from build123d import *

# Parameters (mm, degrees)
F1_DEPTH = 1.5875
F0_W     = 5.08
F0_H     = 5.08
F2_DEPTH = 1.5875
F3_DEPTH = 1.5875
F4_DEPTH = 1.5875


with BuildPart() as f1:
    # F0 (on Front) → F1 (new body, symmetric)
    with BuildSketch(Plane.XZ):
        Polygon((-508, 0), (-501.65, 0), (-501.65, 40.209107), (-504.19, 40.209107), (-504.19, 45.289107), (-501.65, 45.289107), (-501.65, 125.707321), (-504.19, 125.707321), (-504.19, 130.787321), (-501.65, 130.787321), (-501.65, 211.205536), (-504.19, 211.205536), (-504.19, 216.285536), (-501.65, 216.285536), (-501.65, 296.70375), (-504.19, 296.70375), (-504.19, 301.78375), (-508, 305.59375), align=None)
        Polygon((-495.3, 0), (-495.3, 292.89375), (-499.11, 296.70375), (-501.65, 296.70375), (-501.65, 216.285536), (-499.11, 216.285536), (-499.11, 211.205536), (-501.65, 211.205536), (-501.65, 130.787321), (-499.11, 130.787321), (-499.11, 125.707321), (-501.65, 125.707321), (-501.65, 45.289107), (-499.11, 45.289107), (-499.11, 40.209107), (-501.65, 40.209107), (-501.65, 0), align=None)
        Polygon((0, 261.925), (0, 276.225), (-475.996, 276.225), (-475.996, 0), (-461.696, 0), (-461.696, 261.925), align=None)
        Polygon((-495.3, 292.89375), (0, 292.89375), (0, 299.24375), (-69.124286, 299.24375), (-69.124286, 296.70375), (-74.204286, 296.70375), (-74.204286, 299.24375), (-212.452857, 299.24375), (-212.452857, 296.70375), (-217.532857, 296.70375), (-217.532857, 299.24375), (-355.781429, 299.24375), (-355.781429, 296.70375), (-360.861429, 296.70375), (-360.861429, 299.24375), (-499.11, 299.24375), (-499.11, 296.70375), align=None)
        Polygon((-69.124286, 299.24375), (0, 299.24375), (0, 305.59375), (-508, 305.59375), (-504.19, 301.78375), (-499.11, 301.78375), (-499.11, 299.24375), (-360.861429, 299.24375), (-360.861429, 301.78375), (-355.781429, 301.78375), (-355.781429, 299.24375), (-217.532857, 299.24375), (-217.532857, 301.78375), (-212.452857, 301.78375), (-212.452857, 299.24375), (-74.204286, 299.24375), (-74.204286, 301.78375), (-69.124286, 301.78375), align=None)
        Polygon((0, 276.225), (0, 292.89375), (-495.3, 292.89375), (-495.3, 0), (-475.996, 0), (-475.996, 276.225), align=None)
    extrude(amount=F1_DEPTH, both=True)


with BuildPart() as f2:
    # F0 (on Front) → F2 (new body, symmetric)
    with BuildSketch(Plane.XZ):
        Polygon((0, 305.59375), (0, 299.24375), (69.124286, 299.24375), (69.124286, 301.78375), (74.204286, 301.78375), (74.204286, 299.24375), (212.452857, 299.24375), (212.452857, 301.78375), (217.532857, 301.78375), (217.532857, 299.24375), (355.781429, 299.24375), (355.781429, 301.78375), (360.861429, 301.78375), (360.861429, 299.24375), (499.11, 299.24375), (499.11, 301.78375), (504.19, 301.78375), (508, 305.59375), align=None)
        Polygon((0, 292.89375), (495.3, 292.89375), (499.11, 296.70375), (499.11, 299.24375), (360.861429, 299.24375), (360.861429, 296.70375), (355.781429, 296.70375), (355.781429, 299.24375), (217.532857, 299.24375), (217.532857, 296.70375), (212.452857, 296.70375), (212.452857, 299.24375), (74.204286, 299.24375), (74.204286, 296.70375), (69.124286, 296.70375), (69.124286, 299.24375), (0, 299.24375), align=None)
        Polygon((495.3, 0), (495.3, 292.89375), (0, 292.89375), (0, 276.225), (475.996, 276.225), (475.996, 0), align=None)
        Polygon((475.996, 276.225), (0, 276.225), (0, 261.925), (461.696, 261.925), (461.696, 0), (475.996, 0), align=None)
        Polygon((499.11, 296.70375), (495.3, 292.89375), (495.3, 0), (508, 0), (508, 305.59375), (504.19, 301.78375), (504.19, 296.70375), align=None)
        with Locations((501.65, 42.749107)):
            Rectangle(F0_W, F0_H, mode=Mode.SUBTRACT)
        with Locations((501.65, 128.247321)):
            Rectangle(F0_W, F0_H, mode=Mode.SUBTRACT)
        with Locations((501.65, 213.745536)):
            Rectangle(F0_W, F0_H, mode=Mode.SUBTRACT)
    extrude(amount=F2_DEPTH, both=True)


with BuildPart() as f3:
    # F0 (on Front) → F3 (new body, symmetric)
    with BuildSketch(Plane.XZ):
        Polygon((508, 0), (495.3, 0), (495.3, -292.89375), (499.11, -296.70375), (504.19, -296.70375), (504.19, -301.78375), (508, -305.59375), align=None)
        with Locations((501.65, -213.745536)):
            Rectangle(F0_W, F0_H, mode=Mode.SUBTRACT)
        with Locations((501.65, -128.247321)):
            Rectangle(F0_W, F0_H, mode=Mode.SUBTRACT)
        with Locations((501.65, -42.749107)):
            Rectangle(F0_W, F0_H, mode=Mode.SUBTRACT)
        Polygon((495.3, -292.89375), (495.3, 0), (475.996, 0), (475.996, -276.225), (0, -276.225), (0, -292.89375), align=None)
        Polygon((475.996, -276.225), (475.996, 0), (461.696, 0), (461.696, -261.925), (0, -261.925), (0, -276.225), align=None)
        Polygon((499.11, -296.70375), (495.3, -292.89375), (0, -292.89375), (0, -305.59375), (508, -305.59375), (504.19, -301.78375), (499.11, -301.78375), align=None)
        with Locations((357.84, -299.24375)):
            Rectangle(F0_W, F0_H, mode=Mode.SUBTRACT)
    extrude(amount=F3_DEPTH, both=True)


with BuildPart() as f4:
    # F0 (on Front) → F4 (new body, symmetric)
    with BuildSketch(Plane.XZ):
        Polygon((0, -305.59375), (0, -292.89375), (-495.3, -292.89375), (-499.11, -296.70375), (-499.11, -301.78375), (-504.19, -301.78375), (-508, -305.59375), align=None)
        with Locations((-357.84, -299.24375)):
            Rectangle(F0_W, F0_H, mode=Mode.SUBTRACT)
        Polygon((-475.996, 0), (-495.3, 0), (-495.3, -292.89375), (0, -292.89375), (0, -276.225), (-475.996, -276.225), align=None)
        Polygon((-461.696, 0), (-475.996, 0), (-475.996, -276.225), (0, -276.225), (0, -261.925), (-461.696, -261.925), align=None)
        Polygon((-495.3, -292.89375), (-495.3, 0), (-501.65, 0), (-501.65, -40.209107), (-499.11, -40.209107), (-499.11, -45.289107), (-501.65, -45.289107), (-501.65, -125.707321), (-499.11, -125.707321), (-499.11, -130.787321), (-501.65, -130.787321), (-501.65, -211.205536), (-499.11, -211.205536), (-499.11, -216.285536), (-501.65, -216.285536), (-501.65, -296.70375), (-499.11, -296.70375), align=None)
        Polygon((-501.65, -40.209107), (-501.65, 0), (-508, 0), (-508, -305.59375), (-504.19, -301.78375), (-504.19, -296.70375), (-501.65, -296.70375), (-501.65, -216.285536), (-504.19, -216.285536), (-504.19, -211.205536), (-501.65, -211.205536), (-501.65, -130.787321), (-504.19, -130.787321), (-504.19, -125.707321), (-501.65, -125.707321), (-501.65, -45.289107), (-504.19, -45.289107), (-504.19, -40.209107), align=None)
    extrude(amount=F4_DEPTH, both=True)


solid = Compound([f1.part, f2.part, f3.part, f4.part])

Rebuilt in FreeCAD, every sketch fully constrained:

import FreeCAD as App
import Part
import Sketcher
from FreeCAD import Vector
Q = App.Units.Quantity

doc = App.newDocument("Part")
body = doc.addObject("PartDesign::Body", "Body")

# Sketch on XZ plane
sketch1 = body.newObject("Sketcher::SketchObject", "Sketch")
sketch1.AttachmentSupport = (doc.getObject("XZ_Plane"), [""])
sketch1.MapMode = "FlatFace"
sketch1.addGeometry([
    Part.LineSegment(Vector(-508, 0, 0), Vector(-462, 0, 0)),  # 0
    Part.LineSegment(Vector(-462, 0, 0), Vector(-462, 262, 0)),  # 1
    Part.LineSegment(Vector(-462, 262, 0), Vector(0, 262, 0)),  # 2
    Part.LineSegment(Vector(0, 262, 0), Vector(0, 306, 0)),  # 3
    Part.LineSegment(Vector(0, 306, 0), Vector(-508, 306, 0)),  # 4
    Part.LineSegment(Vector(-508, 306, 0), Vector(-508, 0, 0)),  # 5
    Part.LineSegment(Vector(-69, 297, 0), Vector(-74, 297, 0)),  # 6
    Part.LineSegment(Vector(-74, 297, 0), Vector(-74, 302, 0)),  # 7
    Part.LineSegment(Vector(-74, 302, 0), Vector(-69, 302, 0)),  # 8
    Part.LineSegment(Vector(-69, 302, 0), Vector(-69, 297, 0)),  # 9
    Part.LineSegment(Vector(-212, 297, 0), Vector(-218, 297, 0)),  # 10
    Part.LineSegment(Vector(-218, 297, 0), Vector(-218, 302, 0)),  # 11
    Part.LineSegment(Vector(-218, 302, 0), Vector(-212, 302, 0)),  # 12
    Part.LineSegment(Vector(-212, 302, 0), Vector(-212, 297, 0)),  # 13
    Part.LineSegment(Vector(-356, 297, 0), Vector(-361, 297, 0)),  # 14
    Part.LineSegment(Vector(-361, 297, 0), Vector(-361, 302, 0)),  # 15
    Part.LineSegment(Vector(-361, 302, 0), Vector(-356, 302, 0)),  # 16
    Part.LineSegment(Vector(-356, 302, 0), Vector(-356, 297, 0)),  # 17
    Part.LineSegment(Vector(-499, 297, 0), Vector(-504, 297, 0)),  # 18
    Part.LineSegment(Vector(-504, 297, 0), Vector(-504, 302, 0)),  # 19
    Part.LineSegment(Vector(-504, 302, 0), Vector(-499, 302, 0)),  # 20
    Part.LineSegment(Vector(-499, 302, 0), Vector(-499, 297, 0)),  # 21
    Part.LineSegment(Vector(-504, 40, 0), Vector(-504, 45, 0)),  # 22
    Part.LineSegment(Vector(-504, 45, 0), Vector(-499, 45, 0)),  # 23
    Part.LineSegment(Vector(-499, 45, 0), Vector(-499, 40, 0)),  # 24
    Part.LineSegment(Vector(-499, 40, 0), Vector(-504, 40, 0)),  # 25
    Part.LineSegment(Vector(-504, 126, 0), Vector(-504, 131, 0)),  # 26
    Part.LineSegment(Vector(-504, 131, 0), Vector(-499, 131, 0)),  # 27
    Part.LineSegment(Vector(-499, 131, 0), Vector(-499, 126, 0)),  # 28
    Part.LineSegment(Vector(-499, 126, 0), Vector(-504, 126, 0)),  # 29
    Part.LineSegment(Vector(-504, 211, 0), Vector(-504, 216, 0)),  # 30
    Part.LineSegment(Vector(-504, 216, 0), Vector(-499, 216, 0)),  # 31
    Part.LineSegment(Vector(-499, 216, 0), Vector(-499, 211, 0)),  # 32
    Part.LineSegment(Vector(-499, 211, 0), Vector(-504, 211, 0)),  # 33
], False)
sketch1.addConstraint([
    Sketcher.Constraint("Coincident", 0, 2, 1, 1),
    Sketcher.Constraint("Coincident", 1, 2, 2, 1),
    Sketcher.Constraint("Coincident", 2, 2, 3, 1),
    Sketcher.Constraint("Coincident", 3, 2, 4, 1),
    Sketcher.Constraint("Coincident", 4, 2, 5, 1),
    Sketcher.Constraint("Coincident", 5, 2, 0, 1),
    Sketcher.Constraint("Coincident", 6, 2, 7, 1),
    Sketcher.Constraint("Coincident", 7, 2, 8, 1),
    Sketcher.Constraint("Coincident", 8, 2, 9, 1),
    Sketcher.Constraint("Coincident", 9, 2, 6, 1),
    Sketcher.Constraint("Coincident", 10, 2, 11, 1),
    Sketcher.Constraint("Coincident", 11, 2, 12, 1),
    Sketcher.Constraint("Coincident", 12, 2, 13, 1),
    Sketcher.Constraint("Coincident", 13, 2, 10, 1),
    Sketcher.Constraint("Coincident", 14, 2, 15, 1),
    Sketcher.Constraint("Coincident", 15, 2, 16, 1),
    Sketcher.Constraint("Coincident", 16, 2, 17, 1),
    Sketcher.Constraint("Coincident", 17, 2, 14, 1),
    Sketcher.Constraint("Coincident", 18, 2, 19, 1),
    Sketcher.Constraint("Coincident", 19, 2, 20, 1),
    Sketcher.Constraint("Coincident", 20, 2, 21, 1),
    Sketcher.Constraint("Coincident", 21, 2, 18, 1),
    Sketcher.Constraint("Coincident", 22, 2, 23, 1),
    Sketcher.Constraint("Coincident", 23, 2, 24, 1),
    Sketcher.Constraint("Coincident", 24, 2, 25, 1),
    Sketcher.Constraint("Coincident", 25, 2, 22, 1),
    Sketcher.Constraint("Coincident", 26, 2, 27, 1),
    Sketcher.Constraint("Coincident", 27, 2, 28, 1),
    Sketcher.Constraint("Coincident", 28, 2, 29, 1),
    Sketcher.Constraint("Coincident", 29, 2, 26, 1),
    Sketcher.Constraint("Coincident", 30, 2, 31, 1),
    Sketcher.Constraint("Coincident", 31, 2, 32, 1),
    Sketcher.Constraint("Coincident", 32, 2, 33, 1),
    Sketcher.Constraint("Coincident", 33, 2, 30, 1),
    Sketcher.Constraint("Horizontal", 0),
    Sketcher.Constraint("Vertical", 1),
    Sketcher.Constraint("Horizontal", 2),
    Sketcher.Constraint("Vertical", 3),
    Sketcher.Constraint("Horizontal", 4),
    Sketcher.Constraint("Vertical", 5),
    Sketcher.Constraint("Horizontal", 6),
    Sketcher.Constraint("Vertical", 7),
    Sketcher.Constraint("Horizontal", 8),
    Sketcher.Constraint("Vertical", 9),
    Sketcher.Constraint("Horizontal", 10),
    Sketcher.Constraint("Vertical", 11),
    Sketcher.Constraint("Horizontal", 12),
    Sketcher.Constraint("Vertical", 13),
    Sketcher.Constraint("Horizontal", 14),
    Sketcher.Constraint("Vertical", 15),
    Sketcher.Constraint("Horizontal", 16),
    Sketcher.Constraint("Vertical", 17),
    Sketcher.Constraint("Horizontal", 18),
    Sketcher.Constraint("Vertical", 19),
    Sketcher.Constraint("Horizontal", 20),
    Sketcher.Constraint("Vertical", 21),
    Sketcher.Constraint("Vertical", 22),
    Sketcher.Constraint("Horizontal", 23),
    Sketcher.Constraint("Vertical", 24),
    Sketcher.Constraint("Horizontal", 25),
    Sketcher.Constraint("Vertical", 26),
    Sketcher.Constraint("Horizontal", 27),
    Sketcher.Constraint("Vertical", 28),
    Sketcher.Constraint("Horizontal", 29),
    Sketcher.Constraint("Vertical", 30),
    Sketcher.Constraint("Horizontal", 31),
    Sketcher.Constraint("Vertical", 32),
    Sketcher.Constraint("Horizontal", 33),
    Sketcher.Constraint("PointOnObject", 0, 2, -1),
    Sketcher.Constraint("PointOnObject", 2, 2, -2),
    Sketcher.Constraint("Horizontal", 9, 2, 10, 2),
    Sketcher.Constraint("Horizontal", 8, 2, 11, 2),
    Sketcher.Constraint("Horizontal", 13, 2, 14, 2),
    Sketcher.Constraint("Horizontal", 12, 2, 15, 2),
    Sketcher.Constraint("Horizontal", 17, 2, 18, 2),
    Sketcher.Constraint("Horizontal", 16, 2, 19, 2),
    Sketcher.Constraint("Vertical", 19, 2, 22, 2),
    Sketcher.Constraint("Vertical", 21, 2, 23, 2),
    Sketcher.Constraint("Vertical", 25, 2, 26, 2),
    Sketcher.Constraint("Vertical", 24, 2, 27, 2),
    Sketcher.Constraint("Vertical", 29, 2, 30, 2),
    Sketcher.Constraint("Vertical", 28, 2, 31, 2),
    Sketcher.Constraint("Equal", 8, 10),
    Sketcher.Constraint("Equal", 12, 14),
    Sketcher.Constraint("Equal", 16, 18),
    Sketcher.Constraint("Equal", 33, 7),
    Sketcher.Constraint("Equal", 21, 22),
    Sketcher.Constraint("Equal", 24, 26),
    Sketcher.Constraint("Equal", 28, 30),
    Sketcher.Constraint("DistanceX", 4, 2, 4, 1, Q("20 in")),
    Sketcher.Constraint("DistanceX", 6, 2, 6, 1, Q("0.2 in")),
    Sketcher.Constraint("DistanceY", 5, 2, 5, 1, Q("12.03125 in")),
    Sketcher.Constraint("DistanceX", 18, 2, -1, 1, Q("19.85 in")),
    Sketcher.Constraint("DistanceY", 6, 2, 3, 2, Q("0.35 in")),
    Sketcher.Constraint("DistanceX", 0, 1, 0, 2, 46.304),
    Sketcher.Constraint("DistanceY", 1, 1, 1, 2, 261.925),
    Sketcher.Constraint("DistanceX", 14, 2, -1, 1, 360.861429),
    Sketcher.Constraint("DistanceY", -1, 1, 26, 2, 130.787321),
    Sketcher.Constraint("DistanceX", 10, 2, 6, 2, 143.328571),
    Sketcher.Constraint("DistanceX", 14, 2, 10, 2, 143.328572),
    Sketcher.Constraint("DistanceY", -1, 1, 22, 2, 45.289107),
    Sketcher.Constraint("DistanceY", -1, 1, 30, 2, 216.285536),
])
pad1 = body.newObject("PartDesign::Pad", "Pad")
pad1.Profile = sketch1
pad1.Length = Q("0.125 in")
pad1.Midplane = True
body2 = doc.addObject("PartDesign::Body", "Body001")

# Sketch on XZ plane
sketch2 = body2.newObject("Sketcher::SketchObject", "Sketch001")
sketch2.AttachmentSupport = (doc.getObject("XZ_Plane001"), [""])
sketch2.MapMode = "FlatFace"
sketch2.addGeometry([
    Part.LineSegment(Vector(0, 306, 0), Vector(0, 262, 0)),  # 0
    Part.LineSegment(Vector(0, 262, 0), Vector(462, 262, 0)),  # 1
    Part.LineSegment(Vector(462, 262, 0), Vector(462, 0, 0)),  # 2
    Part.LineSegment(Vector(462, 0, 0), Vector(508, 0, 0)),  # 3
    Part.LineSegment(Vector(508, 0, 0), Vector(508, 306, 0)),  # 4
    Part.LineSegment(Vector(508, 306, 0), Vector(0, 306, 0)),  # 5
    Part.LineSegment(Vector(504, 40, 0), Vector(499, 40, 0)),  # 6
    Part.LineSegment(Vector(499, 40, 0), Vector(499, 45, 0)),  # 7
    Part.LineSegment(Vector(499, 45, 0), Vector(504, 45, 0)),  # 8
    Part.LineSegment(Vector(504, 45, 0), Vector(504, 40, 0)),  # 9
    Part.LineSegment(Vector(504, 126, 0), Vector(499, 126, 0)),  # 10
    Part.LineSegment(Vector(499, 126, 0), Vector(499, 131, 0)),  # 11
    Part.LineSegment(Vector(499, 131, 0), Vector(504, 131, 0)),  # 12
    Part.LineSegment(Vector(504, 131, 0), Vector(504, 126, 0)),  # 13
    Part.LineSegment(Vector(69, 302, 0), Vector(74, 302, 0)),  # 14
    Part.LineSegment(Vector(74, 302, 0), Vector(74, 297, 0)),  # 15
    Part.LineSegment(Vector(74, 297, 0), Vector(69, 297, 0)),  # 16
    Part.LineSegment(Vector(69, 297, 0), Vector(69, 302, 0)),  # 17
    Part.LineSegment(Vector(212, 302, 0), Vector(218, 302, 0)),  # 18
    Part.LineSegment(Vector(218, 302, 0), Vector(218, 297, 0)),  # 19
    Part.LineSegment(Vector(218, 297, 0), Vector(212, 297, 0)),  # 20
    Part.LineSegment(Vector(212, 297, 0), Vector(212, 302, 0)),  # 21
    Part.LineSegment(Vector(504, 211, 0), Vector(499, 211, 0)),  # 22
    Part.LineSegment(Vector(499, 211, 0), Vector(499, 216, 0)),  # 23
    Part.LineSegment(Vector(499, 216, 0), Vector(504, 216, 0)),  # 24
    Part.LineSegment(Vector(504, 216, 0), Vector(504, 211, 0)),  # 25
    Part.LineSegment(Vector(356, 302, 0), Vector(361, 302, 0)),  # 26
    Part.LineSegment(Vector(361, 302, 0), Vector(361, 297, 0)),  # 27
    Part.LineSegment(Vector(361, 297, 0), Vector(356, 297, 0)),  # 28
    Part.LineSegment(Vector(356, 297, 0), Vector(356, 302, 0)),  # 29
    Part.LineSegment(Vector(499, 297, 0), Vector(499, 302, 0)),  # 30
    Part.LineSegment(Vector(499, 302, 0), Vector(504, 302, 0)),  # 31
    Part.LineSegment(Vector(504, 302, 0), Vector(504, 297, 0)),  # 32
    Part.LineSegment(Vector(504, 297, 0), Vector(499, 297, 0)),  # 33
], False)
sketch2.addConstraint([
    Sketcher.Constraint("Coincident", 0, 2, 1, 1),
    Sketcher.Constraint("Coincident", 1, 2, 2, 1),
    Sketcher.Constraint("Coincident", 2, 2, 3, 1),
    Sketcher.Constraint("Coincident", 3, 2, 4, 1),
    Sketcher.Constraint("Coincident", 4, 2, 5, 1),
    Sketcher.Constraint("Coincident", 5, 2, 0, 1),
    Sketcher.Constraint("Coincident", 6, 2, 7, 1),
    Sketcher.Constraint("Coincident", 7, 2, 8, 1),
    Sketcher.Constraint("Coincident", 8, 2, 9, 1),
    Sketcher.Constraint("Coincident", 9, 2, 6, 1),
    Sketcher.Constraint("Coincident", 10, 2, 11, 1),
    Sketcher.Constraint("Coincident", 11, 2, 12, 1),
    Sketcher.Constraint("Coincident", 12, 2, 13, 1),
    Sketcher.Constraint("Coincident", 13, 2, 10, 1),
    Sketcher.Constraint("Coincident", 14, 2, 15, 1),
    Sketcher.Constraint("Coincident", 15, 2, 16, 1),
    Sketcher.Constraint("Coincident", 16, 2, 17, 1),
    Sketcher.Constraint("Coincident", 17, 2, 14, 1),
    Sketcher.Constraint("Coincident", 18, 2, 19, 1),
    Sketcher.Constraint("Coincident", 19, 2, 20, 1),
    Sketcher.Constraint("Coincident", 20, 2, 21, 1),
    Sketcher.Constraint("Coincident", 21, 2, 18, 1),
    Sketcher.Constraint("Coincident", 22, 2, 23, 1),
    Sketcher.Constraint("Coincident", 23, 2, 24, 1),
    Sketcher.Constraint("Coincident", 24, 2, 25, 1),
    Sketcher.Constraint("Coincident", 25, 2, 22, 1),
    Sketcher.Constraint("Coincident", 26, 2, 27, 1),
    Sketcher.Constraint("Coincident", 27, 2, 28, 1),
    Sketcher.Constraint("Coincident", 28, 2, 29, 1),
    Sketcher.Constraint("Coincident", 29, 2, 26, 1),
    Sketcher.Constraint("Coincident", 30, 2, 31, 1),
    Sketcher.Constraint("Coincident", 31, 2, 32, 1),
    Sketcher.Constraint("Coincident", 32, 2, 33, 1),
    Sketcher.Constraint("Coincident", 33, 2, 30, 1),
    Sketcher.Constraint("Vertical", 0),
    Sketcher.Constraint("Horizontal", 1),
    Sketcher.Constraint("Vertical", 2),
    Sketcher.Constraint("Horizontal", 3),
    Sketcher.Constraint("Vertical", 4),
    Sketcher.Constraint("Horizontal", 5),
    Sketcher.Constraint("Horizontal", 6),
    Sketcher.Constraint("Vertical", 7),
    Sketcher.Constraint("Horizontal", 8),
    Sketcher.Constraint("Vertical", 9),
    Sketcher.Constraint("Horizontal", 10),
    Sketcher.Constraint("Vertical", 11),
    Sketcher.Constraint("Horizontal", 12),
    Sketcher.Constraint("Vertical", 13),
    Sketcher.Constraint("Horizontal", 14),
    Sketcher.Constraint("Vertical", 15),
    Sketcher.Constraint("Horizontal", 16),
    Sketcher.Constraint("Vertical", 17),
    Sketcher.Constraint("Horizontal", 18),
    Sketcher.Constraint("Vertical", 19),
    Sketcher.Constraint("Horizontal", 20),
    Sketcher.Constraint("Vertical", 21),
    Sketcher.Constraint("Horizontal", 22),
    Sketcher.Constraint("Vertical", 23),
    Sketcher.Constraint("Horizontal", 24),
    Sketcher.Constraint("Vertical", 25),
    Sketcher.Constraint("Horizontal", 26),
    Sketcher.Constraint("Vertical", 27),
    Sketcher.Constraint("Horizontal", 28),
    Sketcher.Constraint("Vertical", 29),
    Sketcher.Constraint("Vertical", 30),
    Sketcher.Constraint("Horizontal", 31),
    Sketcher.Constraint("Vertical", 32),
    Sketcher.Constraint("Horizontal", 33),
    Sketcher.Constraint("PointOnObject", 0, 2, -2),
    Sketcher.Constraint("PointOnObject", 2, 2, -1),
    Sketcher.Constraint("Horizontal", 17, 2, 18, 2),
    Sketcher.Constraint("Horizontal", 16, 2, 19, 2),
    Sketcher.Constraint("Horizontal", 21, 2, 26, 2),
    Sketcher.Constraint("Horizontal", 20, 2, 27, 2),
    Sketcher.Constraint("Horizontal", 29, 2, 30, 2),
    Sketcher.Constraint("Horizontal", 28, 2, 32, 2),
    Sketcher.Constraint("Vertical", 7, 2, 10, 2),
    Sketcher.Constraint("Vertical", 9, 2, 12, 2),
    Sketcher.Constraint("Vertical", 11, 2, 22, 2),
    Sketcher.Constraint("Vertical", 13, 2, 24, 2),
    Sketcher.Constraint("Vertical", 23, 2, 30, 2),
    Sketcher.Constraint("Vertical", 25, 2, 31, 2),
    Sketcher.Constraint("Equal", 12, 14),
    Sketcher.Constraint("Equal", 16, 18),
    Sketcher.Constraint("Equal", 24, 26),
    Sketcher.Constraint("Equal", 33, 7),
    Sketcher.Constraint("Equal", 9, 11),
    Sketcher.Constraint("Equal", 13, 15),
    Sketcher.Constraint("Equal", 21, 23),
    Sketcher.Constraint("DistanceX", 5, 2, 5, 1, Q("20 in")),
    Sketcher.Constraint("DistanceX", 6, 2, 6, 1, Q("0.2 in")),
    Sketcher.Constraint("DistanceY", 4, 1, 4, 2, Q("12.03125 in")),
    Sketcher.Constraint("DistanceX", -1, 1, 6, 2, Q("19.65 in")),
    Sketcher.Constraint("DistanceY", 14, 2, 5, 2, Q("0.15 in")),
    Sketcher.Constraint("DistanceX", 1, 1, 1, 2, 461.696),
    Sketcher.Constraint("DistanceY", 2, 2, 2, 1, 261.925),
    Sketcher.Constraint("DistanceY", -1, 1, 10, 2, 125.707321),
    Sketcher.Constraint("DistanceX", -1, 1, 26, 2, 360.861429),
    Sketcher.Constraint("DistanceX", 14, 2, 18, 2, 143.328571),
    Sketcher.Constraint("DistanceX", 18, 2, 26, 2, 143.328572),
    Sketcher.Constraint("DistanceY", -1, 1, 6, 2, 40.209107),
    Sketcher.Constraint("DistanceY", -1, 1, 22, 2, 211.205536),
])
pad2 = body2.newObject("PartDesign::Pad", "Pad001")
pad2.Profile = sketch2
pad2.Length = Q("0.125 in")
pad2.Midplane = True
body3 = doc.addObject("PartDesign::Body", "Body002")

# Sketch on XZ plane
sketch3 = body3.newObject("Sketcher::SketchObject", "Sketch002")
sketch3.AttachmentSupport = (doc.getObject("XZ_Plane002"), [""])
sketch3.MapMode = "FlatFace"
sketch3.addGeometry([
    Part.LineSegment(Vector(508, 0, 0), Vector(462, 0, 0)),  # 0
    Part.LineSegment(Vector(462, 0, 0), Vector(462, -262, 0)),  # 1
    Part.LineSegment(Vector(462, -262, 0), Vector(0, -262, 0)),  # 2
    Part.LineSegment(Vector(0, -262, 0), Vector(0, -306, 0)),  # 3
    Part.LineSegment(Vector(0, -306, 0), Vector(508, -306, 0)),  # 4
    Part.LineSegment(Vector(508, -306, 0), Vector(508, 0, 0)),  # 5
    Part.LineSegment(Vector(360, -302, 0), Vector(355, -302, 0)),  # 6
    Part.LineSegment(Vector(355, -302, 0), Vector(355, -297, 0)),  # 7
    Part.LineSegment(Vector(355, -297, 0), Vector(360, -297, 0)),  # 8
    Part.LineSegment(Vector(360, -297, 0), Vector(360, -302, 0)),  # 9
    Part.LineSegment(Vector(499, -297, 0), Vector(504, -297, 0)),  # 10
    Part.LineSegment(Vector(504, -297, 0), Vector(504, -302, 0)),  # 11
    Part.LineSegment(Vector(504, -302, 0), Vector(499, -302, 0)),  # 12
    Part.LineSegment(Vector(499, -302, 0), Vector(499, -297, 0)),  # 13
    Part.LineSegment(Vector(504, -216, 0), Vector(499, -216, 0)),  # 14
    Part.LineSegment(Vector(499, -216, 0), Vector(499, -211, 0)),  # 15
    Part.LineSegment(Vector(499, -211, 0), Vector(504, -211, 0)),  # 16
    Part.LineSegment(Vector(504, -211, 0), Vector(504, -216, 0)),  # 17
    Part.LineSegment(Vector(504, -131, 0), Vector(499, -131, 0)),  # 18
    Part.LineSegment(Vector(499, -131, 0), Vector(499, -126, 0)),  # 19
    Part.LineSegment(Vector(499, -126, 0), Vector(504, -126, 0)),  # 20
    Part.LineSegment(Vector(504, -126, 0), Vector(504, -131, 0)),  # 21
    Part.LineSegment(Vector(504, -45, 0), Vector(499, -45, 0)),  # 22
    Part.LineSegment(Vector(499, -45, 0), Vector(499, -40, 0)),  # 23
    Part.LineSegment(Vector(499, -40, 0), Vector(504, -40, 0)),  # 24
    Part.LineSegment(Vector(504, -40, 0), Vector(504, -45, 0)),  # 25
], False)
sketch3.addConstraint([
    Sketcher.Constraint("Coincident", 0, 2, 1, 1),
    Sketcher.Constraint("Coincident", 1, 2, 2, 1),
    Sketcher.Constraint("Coincident", 2, 2, 3, 1),
    Sketcher.Constraint("Coincident", 3, 2, 4, 1),
    Sketcher.Constraint("Coincident", 4, 2, 5, 1),
    Sketcher.Constraint("Coincident", 5, 2, 0, 1),
    Sketcher.Constraint("Coincident", 6, 2, 7, 1),
    Sketcher.Constraint("Coincident", 7, 2, 8, 1),
    Sketcher.Constraint("Coincident", 8, 2, 9, 1),
    Sketcher.Constraint("Coincident", 9, 2, 6, 1),
    Sketcher.Constraint("Coincident", 10, 2, 11, 1),
    Sketcher.Constraint("Coincident", 11, 2, 12, 1),
    Sketcher.Constraint("Coincident", 12, 2, 13, 1),
    Sketcher.Constraint("Coincident", 13, 2, 10, 1),
    Sketcher.Constraint("Coincident", 14, 2, 15, 1),
    Sketcher.Constraint("Coincident", 15, 2, 16, 1),
    Sketcher.Constraint("Coincident", 16, 2, 17, 1),
    Sketcher.Constraint("Coincident", 17, 2, 14, 1),
    Sketcher.Constraint("Coincident", 18, 2, 19, 1),
    Sketcher.Constraint("Coincident", 19, 2, 20, 1),
    Sketcher.Constraint("Coincident", 20, 2, 21, 1),
    Sketcher.Constraint("Coincident", 21, 2, 18, 1),
    Sketcher.Constraint("Coincident", 22, 2, 23, 1),
    Sketcher.Constraint("Coincident", 23, 2, 24, 1),
    Sketcher.Constraint("Coincident", 24, 2, 25, 1),
    Sketcher.Constraint("Coincident", 25, 2, 22, 1),
    Sketcher.Constraint("Horizontal", 0),
    Sketcher.Constraint("Vertical", 1),
    Sketcher.Constraint("Horizontal", 2),
    Sketcher.Constraint("Vertical", 3),
    Sketcher.Constraint("Horizontal", 4),
    Sketcher.Constraint("Vertical", 5),
    Sketcher.Constraint("Horizontal", 6),
    Sketcher.Constraint("Vertical", 7),
    Sketcher.Constraint("Horizontal", 8),
    Sketcher.Constraint("Vertical", 9),
    Sketcher.Constraint("Horizontal", 10),
    Sketcher.Constraint("Vertical", 11),
    Sketcher.Constraint("Horizontal", 12),
    Sketcher.Constraint("Vertical", 13),
    Sketcher.Constraint("Horizontal", 14),
    Sketcher.Constraint("Vertical", 15),
    Sketcher.Constraint("Horizontal", 16),
    Sketcher.Constraint("Vertical", 17),
    Sketcher.Constraint("Horizontal", 18),
    Sketcher.Constraint("Vertical", 19),
    Sketcher.Constraint("Horizontal", 20),
    Sketcher.Constraint("Vertical", 21),
    Sketcher.Constraint("Horizontal", 22),
    Sketcher.Constraint("Vertical", 23),
    Sketcher.Constraint("Horizontal", 24),
    Sketcher.Constraint("Vertical", 25),
    Sketcher.Constraint("PointOnObject", 0, 2, -1),
    Sketcher.Constraint("PointOnObject", 2, 2, -2),
    Sketcher.Constraint("Horizontal", 8, 2, 10, 2),
    Sketcher.Constraint("Horizontal", 9, 2, 11, 2),
    Sketcher.Constraint("Vertical", 13, 2, 14, 2),
    Sketcher.Constraint("Vertical", 11, 2, 16, 2),
    Sketcher.Constraint("Vertical", 15, 2, 18, 2),
    Sketcher.Constraint("Vertical", 17, 2, 20, 2),
    Sketcher.Constraint("Vertical", 19, 2, 22, 2),
    Sketcher.Constraint("Vertical", 21, 2, 24, 2),
    Sketcher.Constraint("Equal", 8, 10),
    Sketcher.Constraint("Equal", 24, 7),
    Sketcher.Constraint("Equal", 13, 15),
    Sketcher.Constraint("Equal", 17, 19),
    Sketcher.Constraint("Equal", 21, 23),
    Sketcher.Constraint("DistanceX", 4, 1, 4, 2, Q("20 in")),
    Sketcher.Constraint("DistanceX", 6, 2, 6, 1, Q("0.2 in")),
    Sketcher.Constraint("DistanceY", 5, 1, 5, 2, Q("12.03125 in")),
    Sketcher.Constraint("DistanceX", -1, 1, 10, 2, Q("19.85 in")),
    Sketcher.Constraint("DistanceY", 4, 2, 6, 2, Q("0.15 in")),
    Sketcher.Constraint("DistanceX", 0, 2, 0, 1, 46.304),
    Sketcher.Constraint("DistanceY", 1, 2, 1, 1, 261.925),
    Sketcher.Constraint("DistanceX", -1, 1, 6, 2, 355.3),
    Sketcher.Constraint("DistanceY", 18, 2, -1, 1, 130.787321),
    Sketcher.Constraint("DistanceY", 14, 2, -1, 1, 216.285536),
    Sketcher.Constraint("DistanceY", 22, 2, -1, 1, 45.289107),
])
pad3 = body3.newObject("PartDesign::Pad", "Pad002")
pad3.Profile = sketch3
pad3.Length = Q("0.125 in")
pad3.Midplane = True
body4 = doc.addObject("PartDesign::Body", "Body003")

# Sketch on XZ plane
sketch4 = body4.newObject("Sketcher::SketchObject", "Sketch003")
sketch4.AttachmentSupport = (doc.getObject("XZ_Plane003"), [""])
sketch4.MapMode = "FlatFace"
sketch4.addGeometry([
    Part.LineSegment(Vector(0, -306, 0), Vector(0, -262, 0)),  # 0
    Part.LineSegment(Vector(0, -262, 0), Vector(-462, -262, 0)),  # 1
    Part.LineSegment(Vector(-462, -262, 0), Vector(-462, 0, 0)),  # 2
    Part.LineSegment(Vector(-462, 0, 0), Vector(-508, 0, 0)),  # 3
    Part.LineSegment(Vector(-508, 0, 0), Vector(-508, -306, 0)),  # 4
    Part.LineSegment(Vector(-508, -306, 0), Vector(0, -306, 0)),  # 5
    Part.LineSegment(Vector(-499, -40, 0), Vector(-499, -45, 0)),  # 6
    Part.LineSegment(Vector(-499, -45, 0), Vector(-504, -45, 0)),  # 7
    Part.LineSegment(Vector(-504, -45, 0), Vector(-504, -40, 0)),  # 8
    Part.LineSegment(Vector(-504, -40, 0), Vector(-499, -40, 0)),  # 9
    Part.LineSegment(Vector(-499, -126, 0), Vector(-499, -131, 0)),  # 10
    Part.LineSegment(Vector(-499, -131, 0), Vector(-504, -131, 0)),  # 11
    Part.LineSegment(Vector(-504, -131, 0), Vector(-504, -126, 0)),  # 12
    Part.LineSegment(Vector(-504, -126, 0), Vector(-499, -126, 0)),  # 13
    Part.LineSegment(Vector(-499, -211, 0), Vector(-499, -216, 0)),  # 14
    Part.LineSegment(Vector(-499, -216, 0), Vector(-504, -216, 0)),  # 15
    Part.LineSegment(Vector(-504, -216, 0), Vector(-504, -211, 0)),  # 16
    Part.LineSegment(Vector(-504, -211, 0), Vector(-499, -211, 0)),  # 17
    Part.LineSegment(Vector(-499, -297, 0), Vector(-499, -302, 0)),  # 18
    Part.LineSegment(Vector(-499, -302, 0), Vector(-504, -302, 0)),  # 19
    Part.LineSegment(Vector(-504, -302, 0), Vector(-504, -297, 0)),  # 20
    Part.LineSegment(Vector(-504, -297, 0), Vector(-499, -297, 0)),  # 21
    Part.LineSegment(Vector(-355, -302, 0), Vector(-360, -302, 0)),  # 22
    Part.LineSegment(Vector(-360, -302, 0), Vector(-360, -297, 0)),  # 23
    Part.LineSegment(Vector(-360, -297, 0), Vector(-355, -297, 0)),  # 24
    Part.LineSegment(Vector(-355, -297, 0), Vector(-355, -302, 0)),  # 25
], False)
sketch4.addConstraint([
    Sketcher.Constraint("Coincident", 0, 2, 1, 1),
    Sketcher.Constraint("Coincident", 1, 2, 2, 1),
    Sketcher.Constraint("Coincident", 2, 2, 3, 1),
    Sketcher.Constraint("Coincident", 3, 2, 4, 1),
    Sketcher.Constraint("Coincident", 4, 2, 5, 1),
    Sketcher.Constraint("Coincident", 5, 2, 0, 1),
    Sketcher.Constraint("Coincident", 6, 2, 7, 1),
    Sketcher.Constraint("Coincident", 7, 2, 8, 1),
    Sketcher.Constraint("Coincident", 8, 2, 9, 1),
    Sketcher.Constraint("Coincident", 9, 2, 6, 1),
    Sketcher.Constraint("Coincident", 10, 2, 11, 1),
    Sketcher.Constraint("Coincident", 11, 2, 12, 1),
    Sketcher.Constraint("Coincident", 12, 2, 13, 1),
    Sketcher.Constraint("Coincident", 13, 2, 10, 1),
    Sketcher.Constraint("Coincident", 14, 2, 15, 1),
    Sketcher.Constraint("Coincident", 15, 2, 16, 1),
    Sketcher.Constraint("Coincident", 16, 2, 17, 1),
    Sketcher.Constraint("Coincident", 17, 2, 14, 1),
    Sketcher.Constraint("Coincident", 18, 2, 19, 1),
    Sketcher.Constraint("Coincident", 19, 2, 20, 1),
    Sketcher.Constraint("Coincident", 20, 2, 21, 1),
    Sketcher.Constraint("Coincident", 21, 2, 18, 1),
    Sketcher.Constraint("Coincident", 22, 2, 23, 1),
    Sketcher.Constraint("Coincident", 23, 2, 24, 1),
    Sketcher.Constraint("Coincident", 24, 2, 25, 1),
    Sketcher.Constraint("Coincident", 25, 2, 22, 1),
    Sketcher.Constraint("Vertical", 0),
    Sketcher.Constraint("Horizontal", 1),
    Sketcher.Constraint("Vertical", 2),
    Sketcher.Constraint("Horizontal", 3),
    Sketcher.Constraint("Vertical", 4),
    Sketcher.Constraint("Horizontal", 5),
    Sketcher.Constraint("Vertical", 6),
    Sketcher.Constraint("Horizontal", 7),
    Sketcher.Constraint("Vertical", 8),
    Sketcher.Constraint("Horizontal", 9),
    Sketcher.Constraint("Vertical", 10),
    Sketcher.Constraint("Horizontal", 11),
    Sketcher.Constraint("Vertical", 12),
    Sketcher.Constraint("Horizontal", 13),
    Sketcher.Constraint("Vertical", 14),
    Sketcher.Constraint("Horizontal", 15),
    Sketcher.Constraint("Vertical", 16),
    Sketcher.Constraint("Horizontal", 17),
    Sketcher.Constraint("Vertical", 18),
    Sketcher.Constraint("Horizontal", 19),
    Sketcher.Constraint("Vertical", 20),
    Sketcher.Constraint("Horizontal", 21),
    Sketcher.Constraint("Horizontal", 22),
    Sketcher.Constraint("Vertical", 23),
    Sketcher.Constraint("Horizontal", 24),
    Sketcher.Constraint("Vertical", 25),
    Sketcher.Constraint("PointOnObject", 0, 2, -2),
    Sketcher.Constraint("PointOnObject", 2, 2, -1),
    Sketcher.Constraint("Horizontal", 19, 2, 22, 2),
    Sketcher.Constraint("Horizontal", 21, 2, 23, 2),
    Sketcher.Constraint("Vertical", 9, 2, 10, 2),
    Sketcher.Constraint("Vertical", 8, 2, 11, 2),
    Sketcher.Constraint("Vertical", 13, 2, 14, 2),
    Sketcher.Constraint("Vertical", 12, 2, 15, 2),
    Sketcher.Constraint("Vertical", 17, 2, 18, 2),
    Sketcher.Constraint("Vertical", 16, 2, 19, 2),
    Sketcher.Constraint("Equal", 21, 22),
    Sketcher.Constraint("Equal", 24, 6),
    Sketcher.Constraint("Equal", 8, 10),
    Sketcher.Constraint("Equal", 12, 14),
    Sketcher.Constraint("Equal", 16, 18),
    Sketcher.Constraint("DistanceX", 5, 1, 5, 2, Q("20 in")),
    Sketcher.Constraint("DistanceX", 7, 2, 7, 1, Q("0.2 in")),
    Sketcher.Constraint("DistanceY", 4, 2, 4, 1, Q("12.03125 in")),
    Sketcher.Constraint("DistanceX", 6, 2, -1, 1, Q("19.65 in")),
    Sketcher.Constraint("DistanceY", 4, 2, 18, 2, Q("0.15 in")),
    Sketcher.Constraint("DistanceX", 1, 2, 1, 1, 461.696),
    Sketcher.Constraint("DistanceY", 2, 1, 2, 2, 261.925),
    Sketcher.Constraint("DistanceX", 22, 2, -1, 1, 360.38),
    Sketcher.Constraint("DistanceY", 10, 2, -1, 1, 130.787321),
    Sketcher.Constraint("DistanceY", 6, 2, -1, 1, 45.289107),
    Sketcher.Constraint("DistanceY", 14, 2, -1, 1, 216.285536),
])
pad4 = body4.newObject("PartDesign::Pad", "Pad003")
pad4.Profile = sketch4
pad4.Length = Q("0.125 in")
pad4.Midplane = True

doc.recompute()
